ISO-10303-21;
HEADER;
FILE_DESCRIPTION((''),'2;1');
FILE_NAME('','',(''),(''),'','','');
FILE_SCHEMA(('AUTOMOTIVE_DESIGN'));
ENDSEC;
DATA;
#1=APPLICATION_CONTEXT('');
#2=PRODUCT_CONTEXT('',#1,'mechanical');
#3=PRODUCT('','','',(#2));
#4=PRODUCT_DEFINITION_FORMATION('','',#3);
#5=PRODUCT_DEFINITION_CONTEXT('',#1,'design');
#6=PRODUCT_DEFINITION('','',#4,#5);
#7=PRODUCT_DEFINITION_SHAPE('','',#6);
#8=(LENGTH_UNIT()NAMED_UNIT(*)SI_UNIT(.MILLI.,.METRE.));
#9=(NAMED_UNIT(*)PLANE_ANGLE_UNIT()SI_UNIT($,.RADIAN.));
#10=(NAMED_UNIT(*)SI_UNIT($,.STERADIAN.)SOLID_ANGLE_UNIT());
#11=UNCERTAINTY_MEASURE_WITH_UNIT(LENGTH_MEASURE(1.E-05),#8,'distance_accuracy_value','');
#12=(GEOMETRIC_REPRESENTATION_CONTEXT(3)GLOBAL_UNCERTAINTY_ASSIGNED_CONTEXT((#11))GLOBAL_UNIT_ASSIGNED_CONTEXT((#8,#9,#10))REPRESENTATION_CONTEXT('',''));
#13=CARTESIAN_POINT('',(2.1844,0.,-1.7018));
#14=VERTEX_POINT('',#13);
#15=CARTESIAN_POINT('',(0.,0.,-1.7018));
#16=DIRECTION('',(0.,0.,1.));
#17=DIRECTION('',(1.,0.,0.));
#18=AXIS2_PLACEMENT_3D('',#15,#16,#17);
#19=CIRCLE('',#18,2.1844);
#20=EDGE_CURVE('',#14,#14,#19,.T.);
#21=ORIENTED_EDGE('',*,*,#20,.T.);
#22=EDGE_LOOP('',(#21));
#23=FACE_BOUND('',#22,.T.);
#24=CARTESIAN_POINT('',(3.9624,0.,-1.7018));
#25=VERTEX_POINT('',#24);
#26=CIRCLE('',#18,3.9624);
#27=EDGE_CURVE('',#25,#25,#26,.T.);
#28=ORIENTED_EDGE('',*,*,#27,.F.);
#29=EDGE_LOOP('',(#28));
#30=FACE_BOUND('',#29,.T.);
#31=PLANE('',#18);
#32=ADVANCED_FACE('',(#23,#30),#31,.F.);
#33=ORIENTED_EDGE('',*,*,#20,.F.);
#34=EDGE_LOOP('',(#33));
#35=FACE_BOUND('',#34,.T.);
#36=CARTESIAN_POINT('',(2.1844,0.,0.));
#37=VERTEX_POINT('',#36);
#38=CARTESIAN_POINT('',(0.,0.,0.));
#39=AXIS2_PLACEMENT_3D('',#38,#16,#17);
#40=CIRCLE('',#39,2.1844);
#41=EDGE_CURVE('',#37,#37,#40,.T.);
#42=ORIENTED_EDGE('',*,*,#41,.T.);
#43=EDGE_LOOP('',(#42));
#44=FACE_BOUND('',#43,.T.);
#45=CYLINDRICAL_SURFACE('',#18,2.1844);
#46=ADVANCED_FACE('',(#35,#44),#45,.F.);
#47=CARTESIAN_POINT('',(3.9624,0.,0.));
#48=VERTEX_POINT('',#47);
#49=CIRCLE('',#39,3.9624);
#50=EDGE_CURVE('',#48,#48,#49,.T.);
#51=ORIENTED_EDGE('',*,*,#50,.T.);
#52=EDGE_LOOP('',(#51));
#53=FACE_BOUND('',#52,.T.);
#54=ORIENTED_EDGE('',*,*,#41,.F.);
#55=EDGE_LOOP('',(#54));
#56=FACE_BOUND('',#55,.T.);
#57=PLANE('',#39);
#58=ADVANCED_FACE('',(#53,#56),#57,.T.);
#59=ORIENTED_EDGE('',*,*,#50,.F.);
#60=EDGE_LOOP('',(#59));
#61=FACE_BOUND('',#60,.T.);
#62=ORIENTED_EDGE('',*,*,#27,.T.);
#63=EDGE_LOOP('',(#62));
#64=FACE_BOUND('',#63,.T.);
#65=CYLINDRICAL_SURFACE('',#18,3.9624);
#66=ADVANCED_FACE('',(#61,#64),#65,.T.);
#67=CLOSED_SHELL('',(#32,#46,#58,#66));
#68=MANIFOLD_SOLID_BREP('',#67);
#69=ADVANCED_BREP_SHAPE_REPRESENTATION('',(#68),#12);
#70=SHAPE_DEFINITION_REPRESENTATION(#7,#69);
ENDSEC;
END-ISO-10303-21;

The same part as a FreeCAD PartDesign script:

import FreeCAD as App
import Part
import Sketcher
from FreeCAD import Vector
Q = App.Units.Quantity

doc = App.newDocument("Part")
body = doc.addObject("PartDesign::Body", "Body")

# Sketch on XY plane
sketch1 = body.newObject("Sketcher::SketchObject", "Sketch")
sketch1.AttachmentSupport = (doc.getObject("XY_Plane"), [""])
sketch1.MapMode = "FlatFace"
sketch1.addGeometry(Part.Circle(Vector(0, 0, 0), Vector(0, 0, 1), 4), False)
sketch1.addGeometry(Part.Circle(Vector(0, 0, 0), Vector(0, 0, 1), 2.2), False)
sketch1.addConstraint(Sketcher.Constraint("Coincident", 0, 3, -1, 1))
sketch1.addConstraint(Sketcher.Constraint("Coincident", 1, 3, -1, 1))
sketch1.addConstraint(Sketcher.Constraint("Diameter", 0, Q("0.312 in")))
sketch1.addConstraint(Sketcher.Constraint("Diameter", 1, Q("0.172 in")))
pad1 = body.newObject("PartDesign::Pad", "Pad")
pad1.Profile = sketch1
pad1.Length = Q("0.067 in")
pad1.Reversed = True

doc.recompute()
